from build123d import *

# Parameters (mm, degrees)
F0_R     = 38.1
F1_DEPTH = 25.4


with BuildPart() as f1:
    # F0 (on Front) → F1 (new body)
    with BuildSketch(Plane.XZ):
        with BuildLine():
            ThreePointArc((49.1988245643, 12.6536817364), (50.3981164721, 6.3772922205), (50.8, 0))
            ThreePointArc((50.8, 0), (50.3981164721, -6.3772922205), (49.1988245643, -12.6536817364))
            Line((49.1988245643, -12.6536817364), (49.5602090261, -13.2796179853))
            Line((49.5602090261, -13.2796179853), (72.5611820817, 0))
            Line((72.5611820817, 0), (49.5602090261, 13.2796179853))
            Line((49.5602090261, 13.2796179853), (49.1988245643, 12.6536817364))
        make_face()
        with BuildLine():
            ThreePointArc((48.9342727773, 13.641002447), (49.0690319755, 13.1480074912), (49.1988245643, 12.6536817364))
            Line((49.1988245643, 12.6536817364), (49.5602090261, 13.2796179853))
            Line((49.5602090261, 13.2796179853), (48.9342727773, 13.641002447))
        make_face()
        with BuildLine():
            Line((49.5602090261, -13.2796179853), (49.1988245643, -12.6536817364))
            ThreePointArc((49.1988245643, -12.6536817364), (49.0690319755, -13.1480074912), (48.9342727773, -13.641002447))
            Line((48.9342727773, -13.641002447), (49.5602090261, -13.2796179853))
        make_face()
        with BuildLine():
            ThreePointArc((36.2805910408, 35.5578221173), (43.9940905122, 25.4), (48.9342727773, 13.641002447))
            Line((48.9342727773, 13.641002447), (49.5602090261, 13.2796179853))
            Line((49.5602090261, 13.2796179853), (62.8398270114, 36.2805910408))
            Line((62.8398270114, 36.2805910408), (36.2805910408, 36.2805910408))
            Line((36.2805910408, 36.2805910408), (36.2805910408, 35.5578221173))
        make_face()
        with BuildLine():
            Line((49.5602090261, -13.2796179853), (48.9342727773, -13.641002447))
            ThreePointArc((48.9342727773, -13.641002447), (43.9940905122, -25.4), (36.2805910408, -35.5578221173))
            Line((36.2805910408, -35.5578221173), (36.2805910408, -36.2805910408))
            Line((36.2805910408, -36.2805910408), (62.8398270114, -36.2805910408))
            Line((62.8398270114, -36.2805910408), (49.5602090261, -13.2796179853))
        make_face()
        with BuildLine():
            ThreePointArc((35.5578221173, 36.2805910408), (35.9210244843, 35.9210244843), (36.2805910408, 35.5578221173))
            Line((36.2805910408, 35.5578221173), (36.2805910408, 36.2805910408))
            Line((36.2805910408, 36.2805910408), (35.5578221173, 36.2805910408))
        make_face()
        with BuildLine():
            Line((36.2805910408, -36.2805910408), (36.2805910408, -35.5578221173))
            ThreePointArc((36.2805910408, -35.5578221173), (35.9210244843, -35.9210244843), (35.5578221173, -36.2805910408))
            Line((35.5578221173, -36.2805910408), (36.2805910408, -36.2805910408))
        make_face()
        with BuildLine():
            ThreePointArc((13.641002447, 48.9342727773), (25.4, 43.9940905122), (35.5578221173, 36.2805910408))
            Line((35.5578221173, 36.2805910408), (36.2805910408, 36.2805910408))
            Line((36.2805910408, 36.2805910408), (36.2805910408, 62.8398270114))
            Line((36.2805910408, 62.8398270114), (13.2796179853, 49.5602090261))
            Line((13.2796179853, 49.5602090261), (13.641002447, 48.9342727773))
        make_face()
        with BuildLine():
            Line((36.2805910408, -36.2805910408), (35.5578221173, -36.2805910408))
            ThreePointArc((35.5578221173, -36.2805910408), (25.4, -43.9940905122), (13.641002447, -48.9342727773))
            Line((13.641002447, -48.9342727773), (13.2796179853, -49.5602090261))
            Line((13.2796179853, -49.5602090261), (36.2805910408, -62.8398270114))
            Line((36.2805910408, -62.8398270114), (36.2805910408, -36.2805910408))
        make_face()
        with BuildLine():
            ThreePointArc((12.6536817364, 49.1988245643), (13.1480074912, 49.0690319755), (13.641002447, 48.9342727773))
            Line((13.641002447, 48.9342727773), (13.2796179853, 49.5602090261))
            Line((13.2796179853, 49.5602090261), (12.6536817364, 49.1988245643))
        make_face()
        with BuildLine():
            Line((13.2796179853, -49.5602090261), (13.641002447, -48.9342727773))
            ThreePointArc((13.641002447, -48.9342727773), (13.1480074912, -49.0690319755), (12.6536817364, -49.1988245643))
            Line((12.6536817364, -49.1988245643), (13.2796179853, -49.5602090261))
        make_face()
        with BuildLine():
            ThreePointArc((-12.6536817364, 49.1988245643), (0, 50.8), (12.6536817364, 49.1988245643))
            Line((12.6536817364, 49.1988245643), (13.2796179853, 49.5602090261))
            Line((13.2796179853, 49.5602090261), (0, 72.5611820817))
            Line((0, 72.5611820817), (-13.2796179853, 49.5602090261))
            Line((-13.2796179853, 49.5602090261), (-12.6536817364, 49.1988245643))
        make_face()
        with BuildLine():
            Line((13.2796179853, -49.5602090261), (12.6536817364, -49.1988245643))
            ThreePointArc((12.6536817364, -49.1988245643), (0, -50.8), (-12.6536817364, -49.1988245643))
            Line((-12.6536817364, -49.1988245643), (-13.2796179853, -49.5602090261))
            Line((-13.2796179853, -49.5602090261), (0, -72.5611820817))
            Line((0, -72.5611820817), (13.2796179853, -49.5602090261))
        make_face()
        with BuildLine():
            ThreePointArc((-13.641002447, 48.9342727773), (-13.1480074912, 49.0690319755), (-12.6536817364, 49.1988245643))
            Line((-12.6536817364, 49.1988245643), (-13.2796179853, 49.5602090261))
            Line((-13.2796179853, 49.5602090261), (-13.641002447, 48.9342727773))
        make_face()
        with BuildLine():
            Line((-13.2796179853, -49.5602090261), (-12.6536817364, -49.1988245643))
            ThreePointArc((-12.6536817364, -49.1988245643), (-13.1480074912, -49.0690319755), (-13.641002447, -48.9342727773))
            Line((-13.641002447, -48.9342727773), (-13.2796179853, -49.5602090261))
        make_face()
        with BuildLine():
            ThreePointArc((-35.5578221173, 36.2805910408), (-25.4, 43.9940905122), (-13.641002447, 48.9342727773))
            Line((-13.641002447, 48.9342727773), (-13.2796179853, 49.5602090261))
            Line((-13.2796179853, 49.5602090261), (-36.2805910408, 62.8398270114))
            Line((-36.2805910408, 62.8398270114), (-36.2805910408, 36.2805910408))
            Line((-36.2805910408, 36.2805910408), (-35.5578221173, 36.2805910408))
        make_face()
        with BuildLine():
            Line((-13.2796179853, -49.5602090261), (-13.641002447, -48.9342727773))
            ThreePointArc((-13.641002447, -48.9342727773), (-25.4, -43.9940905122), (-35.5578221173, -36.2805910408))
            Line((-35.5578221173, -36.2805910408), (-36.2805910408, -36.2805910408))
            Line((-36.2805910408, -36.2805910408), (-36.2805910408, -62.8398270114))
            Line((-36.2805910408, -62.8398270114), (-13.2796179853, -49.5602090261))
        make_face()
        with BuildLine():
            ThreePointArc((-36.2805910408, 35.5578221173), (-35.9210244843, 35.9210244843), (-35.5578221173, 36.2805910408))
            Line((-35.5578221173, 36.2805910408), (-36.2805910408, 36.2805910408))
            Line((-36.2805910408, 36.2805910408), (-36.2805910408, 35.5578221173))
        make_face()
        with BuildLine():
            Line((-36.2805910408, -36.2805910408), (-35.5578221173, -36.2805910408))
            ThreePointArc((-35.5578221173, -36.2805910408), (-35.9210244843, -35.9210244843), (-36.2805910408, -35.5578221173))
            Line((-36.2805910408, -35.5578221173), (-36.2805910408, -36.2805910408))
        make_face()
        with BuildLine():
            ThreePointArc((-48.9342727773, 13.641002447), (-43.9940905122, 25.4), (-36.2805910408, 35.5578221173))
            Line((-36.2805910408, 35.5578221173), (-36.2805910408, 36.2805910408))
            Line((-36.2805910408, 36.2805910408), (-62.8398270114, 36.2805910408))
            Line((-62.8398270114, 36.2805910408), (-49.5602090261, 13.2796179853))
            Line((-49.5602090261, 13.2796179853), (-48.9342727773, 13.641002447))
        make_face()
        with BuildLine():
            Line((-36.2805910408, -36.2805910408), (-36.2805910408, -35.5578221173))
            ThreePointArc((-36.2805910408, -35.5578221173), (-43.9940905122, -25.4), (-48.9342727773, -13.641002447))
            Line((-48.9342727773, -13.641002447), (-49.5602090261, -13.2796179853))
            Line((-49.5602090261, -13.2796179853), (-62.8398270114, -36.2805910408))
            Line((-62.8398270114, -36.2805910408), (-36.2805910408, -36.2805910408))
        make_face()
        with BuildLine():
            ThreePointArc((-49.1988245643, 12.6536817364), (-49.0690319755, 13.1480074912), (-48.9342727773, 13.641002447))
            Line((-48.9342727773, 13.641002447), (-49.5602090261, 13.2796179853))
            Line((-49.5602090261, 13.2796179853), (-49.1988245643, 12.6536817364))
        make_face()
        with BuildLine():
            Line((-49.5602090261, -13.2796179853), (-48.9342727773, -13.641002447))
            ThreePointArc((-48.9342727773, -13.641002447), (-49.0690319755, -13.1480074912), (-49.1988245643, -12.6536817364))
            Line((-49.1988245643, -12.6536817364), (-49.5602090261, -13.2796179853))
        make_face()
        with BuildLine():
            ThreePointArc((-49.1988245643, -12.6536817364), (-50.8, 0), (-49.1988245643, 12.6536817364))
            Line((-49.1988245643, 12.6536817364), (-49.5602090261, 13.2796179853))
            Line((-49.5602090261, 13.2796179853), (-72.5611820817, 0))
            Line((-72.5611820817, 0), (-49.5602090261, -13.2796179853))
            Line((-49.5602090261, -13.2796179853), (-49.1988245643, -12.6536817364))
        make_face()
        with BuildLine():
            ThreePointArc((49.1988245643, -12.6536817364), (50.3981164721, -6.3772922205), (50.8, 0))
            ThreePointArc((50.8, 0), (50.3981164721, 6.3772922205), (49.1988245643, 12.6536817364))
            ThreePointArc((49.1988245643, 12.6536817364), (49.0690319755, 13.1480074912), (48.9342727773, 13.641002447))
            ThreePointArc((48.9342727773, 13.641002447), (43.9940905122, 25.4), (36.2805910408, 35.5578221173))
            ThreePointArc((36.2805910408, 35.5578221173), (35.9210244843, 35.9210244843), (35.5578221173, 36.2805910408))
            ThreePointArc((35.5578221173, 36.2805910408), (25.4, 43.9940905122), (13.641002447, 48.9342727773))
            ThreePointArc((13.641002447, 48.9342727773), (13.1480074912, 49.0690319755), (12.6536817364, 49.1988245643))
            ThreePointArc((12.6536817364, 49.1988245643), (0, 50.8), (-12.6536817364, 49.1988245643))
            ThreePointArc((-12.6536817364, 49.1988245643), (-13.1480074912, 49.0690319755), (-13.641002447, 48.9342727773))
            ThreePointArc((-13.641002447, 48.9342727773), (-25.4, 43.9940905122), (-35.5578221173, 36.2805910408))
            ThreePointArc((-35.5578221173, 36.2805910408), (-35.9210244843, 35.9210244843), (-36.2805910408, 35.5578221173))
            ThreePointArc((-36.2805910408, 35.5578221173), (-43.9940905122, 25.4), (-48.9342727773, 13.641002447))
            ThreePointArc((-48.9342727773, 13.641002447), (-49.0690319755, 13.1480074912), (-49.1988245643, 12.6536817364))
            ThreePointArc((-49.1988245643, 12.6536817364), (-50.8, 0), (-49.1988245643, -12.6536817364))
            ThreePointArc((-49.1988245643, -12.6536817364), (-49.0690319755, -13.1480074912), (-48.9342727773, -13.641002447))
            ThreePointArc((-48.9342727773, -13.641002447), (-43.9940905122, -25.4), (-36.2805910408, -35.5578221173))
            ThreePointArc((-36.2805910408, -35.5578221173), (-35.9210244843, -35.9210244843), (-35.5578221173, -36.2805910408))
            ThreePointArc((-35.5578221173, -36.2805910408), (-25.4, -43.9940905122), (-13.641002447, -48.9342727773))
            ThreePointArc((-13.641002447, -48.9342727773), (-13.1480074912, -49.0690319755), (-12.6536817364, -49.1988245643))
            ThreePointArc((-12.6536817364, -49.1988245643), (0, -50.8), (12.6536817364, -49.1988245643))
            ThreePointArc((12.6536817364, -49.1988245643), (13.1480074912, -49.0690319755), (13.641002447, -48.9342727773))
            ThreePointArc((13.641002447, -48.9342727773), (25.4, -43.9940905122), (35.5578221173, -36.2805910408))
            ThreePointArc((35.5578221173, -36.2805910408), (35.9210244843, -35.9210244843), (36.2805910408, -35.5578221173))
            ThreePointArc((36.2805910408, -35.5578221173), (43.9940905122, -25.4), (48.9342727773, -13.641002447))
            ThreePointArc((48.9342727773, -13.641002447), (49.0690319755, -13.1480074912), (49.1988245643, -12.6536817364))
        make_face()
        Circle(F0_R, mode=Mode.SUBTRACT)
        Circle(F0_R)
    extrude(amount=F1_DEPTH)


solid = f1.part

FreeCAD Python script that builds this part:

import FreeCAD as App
import Part
import Sketcher
from FreeCAD import Vector
Q = App.Units.Quantity


def add_polygon(sketch, points):
    """Adds a closed chain of lines whose ends are joined by coincident constraints."""
    first, n = sketch.GeometryCount, len(points)
    for a, b in zip(points, points[1:] + points[:1]):
        sketch.addGeometry(Part.LineSegment(App.Vector(*a, 0), App.Vector(*b, 0)), False)
    for i in range(n):
        sketch.addConstraint(Sketcher.Constraint("Coincident", first + i, 2, first + (i + 1) % n, 1))

doc = App.newDocument("Part")
body = doc.addObject("PartDesign::Body", "Body")

# Sketch on XZ plane
sketch1 = body.newObject("Sketcher::SketchObject", "Sketch")
sketch1.AttachmentSupport = (doc.getObject("XZ_Plane"), [""])
sketch1.MapMode = "FlatFace"
add_polygon(sketch1, [(-49.560209, -13.279618), (-62.839827, -36.280591), (-36.280591, -36.280591), (-36.280591, -62.839827), (-13.279618, -49.560209), (0, -72.561182), (13.279618, -49.560209), (36.280591, -62.839827), (36.280591, -36.280591), (62.839827, -36.280591), (49.560209, -13.279618), (72.561182, 0), (49.560209, 13.279618), (62.839827, 36.280591), (36.280591, 36.280591), (36.280591, 62.839827), (13.279618, 49.560209), (0, 72.561182), (-13.279618, 49.560209), (-36.280591, 62.839827), (-36.280591, 36.280591), (-62.839827, 36.280591), (-49.560209, 13.279618), (-72.561182, 0)])  # lines 0-23
sketch1.addConstraint(Sketcher.Constraint("Horizontal", 1))
sketch1.addConstraint(Sketcher.Constraint("Vertical", 2))
sketch1.addConstraint(Sketcher.Constraint("Vertical", 7))
sketch1.addConstraint(Sketcher.Constraint("Horizontal", 8))
sketch1.addConstraint(Sketcher.Constraint("Horizontal", 13))
sketch1.addConstraint(Sketcher.Constraint("Vertical", 14))
sketch1.addConstraint(Sketcher.Constraint("Vertical", 19))
sketch1.addConstraint(Sketcher.Constraint("Horizontal", 20))
sketch1.addConstraint(Sketcher.Constraint("Symmetric", 0, 2, 12, 2, -1, 1))
sketch1.addConstraint(Sketcher.Constraint("Symmetric", 2, 2, 14, 2, -1, 1))
sketch1.addConstraint(Sketcher.Constraint("Symmetric", 3, 2, 15, 2, -1, 1))
sketch1.addConstraint(Sketcher.Constraint("Symmetric", 4, 2, 16, 2, -1, 1))
sketch1.addConstraint(Sketcher.Constraint("Symmetric", 5, 2, 17, 2, -1, 1))
sketch1.addConstraint(Sketcher.Constraint("Symmetric", 6, 2, 18, 2, -1, 1))
sketch1.addConstraint(Sketcher.Constraint("Symmetric", 8, 2, 20, 2, -1, 1))
sketch1.addConstraint(Sketcher.Constraint("Symmetric", 9, 2, 21, 2, -1, 1))
sketch1.addConstraint(Sketcher.Constraint("Symmetric", 10, 2, 22, 2, -1, 1))
sketch1.addConstraint(Sketcher.Constraint("Symmetric", 11, 2, 23, 2, -1, 1))
sketch1.addConstraint(Sketcher.Constraint("Symmetric", 3, 2, 5, 2, -2))
sketch1.addConstraint(Sketcher.Constraint("Symmetric", 2, 2, 6, 2, -2))
sketch1.addConstraint(Sketcher.Constraint("Symmetric", 0, 2, 8, 2, -2))
sketch1.addConstraint(Sketcher.Constraint("Symmetric", 11, 2, 21, 2, -2))
sketch1.addConstraint(Sketcher.Constraint("PointOnObject", 4, 2, -2))
sketch1.addConstraint(Sketcher.Constraint("PointOnObject", 10, 2, -1))
sketch1.addConstraint(Sketcher.Constraint("Perpendicular", 3, 4))
sketch1.addConstraint(Sketcher.Constraint("Parallel", 0, 5))
sketch1.addConstraint(Sketcher.Constraint("Perpendicular", 9, 10))
sketch1.addConstraint(Sketcher.Constraint("Equal", 20, 2))
sketch1.addConstraint(Sketcher.Constraint("Equal", 0, 3))
sketch1.addConstraint(Sketcher.Constraint("Equal", 3, 4))
sketch1.addConstraint(Sketcher.Constraint("Equal", 9, 10))
sketch1.addConstraint(Sketcher.Constraint("Angle", 0, Q("-120 deg")))
sketch1.addConstraint(Sketcher.Constraint("DistanceX", 1, 1, 1, 2, 26.559236))
sketch1.addConstraint(Sketcher.Constraint("DistanceY", 0, 2, -1, 1, 36.280591))
pad1 = body.newObject("PartDesign::Pad", "Pad")
pad1.Profile = sketch1
pad1.Length = Q("1 in")

doc.recompute()
